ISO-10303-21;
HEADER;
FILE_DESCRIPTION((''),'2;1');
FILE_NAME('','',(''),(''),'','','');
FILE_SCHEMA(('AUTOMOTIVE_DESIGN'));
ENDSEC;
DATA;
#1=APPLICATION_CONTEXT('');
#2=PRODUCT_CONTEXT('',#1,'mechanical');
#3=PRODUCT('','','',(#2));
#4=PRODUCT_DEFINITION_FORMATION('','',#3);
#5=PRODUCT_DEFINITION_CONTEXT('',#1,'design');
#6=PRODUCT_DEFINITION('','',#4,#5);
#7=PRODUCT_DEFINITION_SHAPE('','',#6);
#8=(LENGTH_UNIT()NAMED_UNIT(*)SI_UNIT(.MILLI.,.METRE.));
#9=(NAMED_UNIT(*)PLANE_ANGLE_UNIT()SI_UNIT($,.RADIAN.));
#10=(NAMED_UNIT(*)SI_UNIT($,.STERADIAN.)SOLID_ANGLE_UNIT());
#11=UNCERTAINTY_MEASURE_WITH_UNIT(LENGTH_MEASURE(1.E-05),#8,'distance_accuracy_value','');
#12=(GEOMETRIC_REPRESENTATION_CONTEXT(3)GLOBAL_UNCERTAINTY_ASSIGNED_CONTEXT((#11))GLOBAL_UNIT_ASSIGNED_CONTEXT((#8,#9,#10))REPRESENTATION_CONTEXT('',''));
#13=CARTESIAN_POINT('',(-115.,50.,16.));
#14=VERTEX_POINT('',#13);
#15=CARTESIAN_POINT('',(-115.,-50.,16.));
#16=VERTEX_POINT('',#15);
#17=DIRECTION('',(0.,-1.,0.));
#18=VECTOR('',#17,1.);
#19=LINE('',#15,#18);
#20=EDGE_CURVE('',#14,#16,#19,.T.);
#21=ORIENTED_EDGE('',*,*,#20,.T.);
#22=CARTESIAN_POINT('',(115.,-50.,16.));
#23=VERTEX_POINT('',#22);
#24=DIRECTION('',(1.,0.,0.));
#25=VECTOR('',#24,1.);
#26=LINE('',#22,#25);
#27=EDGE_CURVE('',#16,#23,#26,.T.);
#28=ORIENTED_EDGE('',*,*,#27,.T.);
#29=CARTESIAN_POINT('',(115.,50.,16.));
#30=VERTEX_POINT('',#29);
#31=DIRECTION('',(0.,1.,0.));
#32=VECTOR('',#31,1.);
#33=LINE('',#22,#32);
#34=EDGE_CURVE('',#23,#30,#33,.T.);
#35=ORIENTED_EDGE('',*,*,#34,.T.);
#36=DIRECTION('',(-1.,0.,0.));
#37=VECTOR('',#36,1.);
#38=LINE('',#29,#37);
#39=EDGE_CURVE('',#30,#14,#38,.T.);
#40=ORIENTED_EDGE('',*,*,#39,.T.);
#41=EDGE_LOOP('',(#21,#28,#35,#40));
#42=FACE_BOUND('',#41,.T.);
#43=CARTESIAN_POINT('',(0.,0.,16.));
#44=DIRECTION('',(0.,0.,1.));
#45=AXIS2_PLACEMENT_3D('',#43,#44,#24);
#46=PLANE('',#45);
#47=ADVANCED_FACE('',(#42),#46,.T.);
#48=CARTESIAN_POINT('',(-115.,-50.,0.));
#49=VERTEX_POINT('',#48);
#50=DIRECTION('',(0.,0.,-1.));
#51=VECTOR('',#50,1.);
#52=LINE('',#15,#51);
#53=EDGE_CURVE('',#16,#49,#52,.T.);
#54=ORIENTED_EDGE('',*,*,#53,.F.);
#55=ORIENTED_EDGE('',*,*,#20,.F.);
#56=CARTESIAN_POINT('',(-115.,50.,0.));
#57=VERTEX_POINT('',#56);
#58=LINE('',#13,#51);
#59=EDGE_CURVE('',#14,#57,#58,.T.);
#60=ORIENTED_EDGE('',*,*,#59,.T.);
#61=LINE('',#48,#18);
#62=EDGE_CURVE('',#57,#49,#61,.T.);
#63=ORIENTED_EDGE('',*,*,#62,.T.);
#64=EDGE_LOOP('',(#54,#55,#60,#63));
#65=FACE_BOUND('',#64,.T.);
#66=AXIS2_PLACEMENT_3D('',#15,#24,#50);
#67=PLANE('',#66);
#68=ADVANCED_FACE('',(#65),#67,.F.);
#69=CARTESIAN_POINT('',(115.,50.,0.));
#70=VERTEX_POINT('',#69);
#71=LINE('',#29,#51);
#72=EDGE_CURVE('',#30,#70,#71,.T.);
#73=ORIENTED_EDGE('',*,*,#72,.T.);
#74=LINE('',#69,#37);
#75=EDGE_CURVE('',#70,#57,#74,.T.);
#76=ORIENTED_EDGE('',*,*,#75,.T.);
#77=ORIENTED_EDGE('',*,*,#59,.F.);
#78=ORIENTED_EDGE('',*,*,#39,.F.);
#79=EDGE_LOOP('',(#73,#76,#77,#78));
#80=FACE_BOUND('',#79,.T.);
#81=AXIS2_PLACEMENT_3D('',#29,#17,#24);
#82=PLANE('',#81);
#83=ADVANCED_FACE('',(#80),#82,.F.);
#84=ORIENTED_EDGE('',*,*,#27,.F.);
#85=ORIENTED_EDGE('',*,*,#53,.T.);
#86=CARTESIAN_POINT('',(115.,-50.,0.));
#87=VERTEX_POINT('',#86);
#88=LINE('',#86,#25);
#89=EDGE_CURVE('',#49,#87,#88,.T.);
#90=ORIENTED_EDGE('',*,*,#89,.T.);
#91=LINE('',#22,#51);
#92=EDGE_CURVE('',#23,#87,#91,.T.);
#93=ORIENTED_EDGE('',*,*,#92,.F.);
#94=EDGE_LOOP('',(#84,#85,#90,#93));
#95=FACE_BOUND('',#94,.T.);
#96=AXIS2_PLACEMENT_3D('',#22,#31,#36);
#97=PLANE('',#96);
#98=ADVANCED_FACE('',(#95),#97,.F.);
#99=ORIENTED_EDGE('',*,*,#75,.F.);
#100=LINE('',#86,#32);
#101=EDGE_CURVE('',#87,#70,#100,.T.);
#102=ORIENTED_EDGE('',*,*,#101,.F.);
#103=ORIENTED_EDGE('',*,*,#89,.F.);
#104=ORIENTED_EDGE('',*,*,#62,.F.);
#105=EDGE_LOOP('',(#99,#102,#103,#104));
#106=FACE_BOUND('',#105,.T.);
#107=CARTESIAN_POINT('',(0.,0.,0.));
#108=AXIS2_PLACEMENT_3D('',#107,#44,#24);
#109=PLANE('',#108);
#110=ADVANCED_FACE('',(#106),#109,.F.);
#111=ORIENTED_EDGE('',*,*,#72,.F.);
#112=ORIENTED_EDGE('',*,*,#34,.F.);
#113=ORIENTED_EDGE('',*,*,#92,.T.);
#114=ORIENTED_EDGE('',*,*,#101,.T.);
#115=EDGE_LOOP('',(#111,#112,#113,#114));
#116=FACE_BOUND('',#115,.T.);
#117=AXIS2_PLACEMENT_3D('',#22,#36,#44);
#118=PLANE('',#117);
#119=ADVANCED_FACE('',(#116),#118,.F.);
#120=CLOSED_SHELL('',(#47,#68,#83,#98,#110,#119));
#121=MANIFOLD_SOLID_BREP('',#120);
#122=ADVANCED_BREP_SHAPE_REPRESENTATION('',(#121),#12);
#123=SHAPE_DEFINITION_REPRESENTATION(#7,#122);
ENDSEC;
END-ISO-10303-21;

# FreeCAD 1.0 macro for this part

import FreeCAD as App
import Part
import Sketcher
Q = App.Units.Quantity


def add_polygon(sketch, points):
    """Adds a closed chain of lines whose ends are joined by coincident constraints."""
    first, n = sketch.GeometryCount, len(points)
    for a, b in zip(points, points[1:] + points[:1]):
        sketch.addGeometry(Part.LineSegment(App.Vector(*a, 0), App.Vector(*b, 0)), False)
    for i in range(n):
        sketch.addConstraint(Sketcher.Constraint("Coincident", first + i, 2, first + (i + 1) % n, 1))

doc = App.newDocument("Part")
body = doc.addObject("PartDesign::Body", "Body")

# Sketch on XY plane
sketch1 = doc.addObject("Sketcher::SketchObject", "Sketch")
body.addObject(sketch1)
sketch1.AttachmentSupport = (doc.XY_Plane, [""])
sketch1.MapMode = "FlatFace"
add_polygon(sketch1, [(-115, 50), (-115, -50), (115, -50), (115, 50)])  # lines 0-3
sketch1.addConstraint(Sketcher.Constraint("Vertical", 0))
sketch1.addConstraint(Sketcher.Constraint("Horizontal", 1))
sketch1.addConstraint(Sketcher.Constraint("Vertical", 2))
sketch1.addConstraint(Sketcher.Constraint("Horizontal", 3))
sketch1.addConstraint(Sketcher.Constraint("Symmetric", 0, 2, 2, 2, -1, 1))
sketch1.addConstraint(Sketcher.Constraint("DistanceX", 1, 1, 1, 2, Q("230 mm")))
sketch1.addConstraint(Sketcher.Constraint("DistanceY", 0, 2, 0, 1, Q("100 mm")))
pad1 = doc.addObject("PartDesign::Pad", "Pad")
body.addObject(pad1)
pad1.Profile = sketch1
pad1.Length = 16

doc.recompute()
